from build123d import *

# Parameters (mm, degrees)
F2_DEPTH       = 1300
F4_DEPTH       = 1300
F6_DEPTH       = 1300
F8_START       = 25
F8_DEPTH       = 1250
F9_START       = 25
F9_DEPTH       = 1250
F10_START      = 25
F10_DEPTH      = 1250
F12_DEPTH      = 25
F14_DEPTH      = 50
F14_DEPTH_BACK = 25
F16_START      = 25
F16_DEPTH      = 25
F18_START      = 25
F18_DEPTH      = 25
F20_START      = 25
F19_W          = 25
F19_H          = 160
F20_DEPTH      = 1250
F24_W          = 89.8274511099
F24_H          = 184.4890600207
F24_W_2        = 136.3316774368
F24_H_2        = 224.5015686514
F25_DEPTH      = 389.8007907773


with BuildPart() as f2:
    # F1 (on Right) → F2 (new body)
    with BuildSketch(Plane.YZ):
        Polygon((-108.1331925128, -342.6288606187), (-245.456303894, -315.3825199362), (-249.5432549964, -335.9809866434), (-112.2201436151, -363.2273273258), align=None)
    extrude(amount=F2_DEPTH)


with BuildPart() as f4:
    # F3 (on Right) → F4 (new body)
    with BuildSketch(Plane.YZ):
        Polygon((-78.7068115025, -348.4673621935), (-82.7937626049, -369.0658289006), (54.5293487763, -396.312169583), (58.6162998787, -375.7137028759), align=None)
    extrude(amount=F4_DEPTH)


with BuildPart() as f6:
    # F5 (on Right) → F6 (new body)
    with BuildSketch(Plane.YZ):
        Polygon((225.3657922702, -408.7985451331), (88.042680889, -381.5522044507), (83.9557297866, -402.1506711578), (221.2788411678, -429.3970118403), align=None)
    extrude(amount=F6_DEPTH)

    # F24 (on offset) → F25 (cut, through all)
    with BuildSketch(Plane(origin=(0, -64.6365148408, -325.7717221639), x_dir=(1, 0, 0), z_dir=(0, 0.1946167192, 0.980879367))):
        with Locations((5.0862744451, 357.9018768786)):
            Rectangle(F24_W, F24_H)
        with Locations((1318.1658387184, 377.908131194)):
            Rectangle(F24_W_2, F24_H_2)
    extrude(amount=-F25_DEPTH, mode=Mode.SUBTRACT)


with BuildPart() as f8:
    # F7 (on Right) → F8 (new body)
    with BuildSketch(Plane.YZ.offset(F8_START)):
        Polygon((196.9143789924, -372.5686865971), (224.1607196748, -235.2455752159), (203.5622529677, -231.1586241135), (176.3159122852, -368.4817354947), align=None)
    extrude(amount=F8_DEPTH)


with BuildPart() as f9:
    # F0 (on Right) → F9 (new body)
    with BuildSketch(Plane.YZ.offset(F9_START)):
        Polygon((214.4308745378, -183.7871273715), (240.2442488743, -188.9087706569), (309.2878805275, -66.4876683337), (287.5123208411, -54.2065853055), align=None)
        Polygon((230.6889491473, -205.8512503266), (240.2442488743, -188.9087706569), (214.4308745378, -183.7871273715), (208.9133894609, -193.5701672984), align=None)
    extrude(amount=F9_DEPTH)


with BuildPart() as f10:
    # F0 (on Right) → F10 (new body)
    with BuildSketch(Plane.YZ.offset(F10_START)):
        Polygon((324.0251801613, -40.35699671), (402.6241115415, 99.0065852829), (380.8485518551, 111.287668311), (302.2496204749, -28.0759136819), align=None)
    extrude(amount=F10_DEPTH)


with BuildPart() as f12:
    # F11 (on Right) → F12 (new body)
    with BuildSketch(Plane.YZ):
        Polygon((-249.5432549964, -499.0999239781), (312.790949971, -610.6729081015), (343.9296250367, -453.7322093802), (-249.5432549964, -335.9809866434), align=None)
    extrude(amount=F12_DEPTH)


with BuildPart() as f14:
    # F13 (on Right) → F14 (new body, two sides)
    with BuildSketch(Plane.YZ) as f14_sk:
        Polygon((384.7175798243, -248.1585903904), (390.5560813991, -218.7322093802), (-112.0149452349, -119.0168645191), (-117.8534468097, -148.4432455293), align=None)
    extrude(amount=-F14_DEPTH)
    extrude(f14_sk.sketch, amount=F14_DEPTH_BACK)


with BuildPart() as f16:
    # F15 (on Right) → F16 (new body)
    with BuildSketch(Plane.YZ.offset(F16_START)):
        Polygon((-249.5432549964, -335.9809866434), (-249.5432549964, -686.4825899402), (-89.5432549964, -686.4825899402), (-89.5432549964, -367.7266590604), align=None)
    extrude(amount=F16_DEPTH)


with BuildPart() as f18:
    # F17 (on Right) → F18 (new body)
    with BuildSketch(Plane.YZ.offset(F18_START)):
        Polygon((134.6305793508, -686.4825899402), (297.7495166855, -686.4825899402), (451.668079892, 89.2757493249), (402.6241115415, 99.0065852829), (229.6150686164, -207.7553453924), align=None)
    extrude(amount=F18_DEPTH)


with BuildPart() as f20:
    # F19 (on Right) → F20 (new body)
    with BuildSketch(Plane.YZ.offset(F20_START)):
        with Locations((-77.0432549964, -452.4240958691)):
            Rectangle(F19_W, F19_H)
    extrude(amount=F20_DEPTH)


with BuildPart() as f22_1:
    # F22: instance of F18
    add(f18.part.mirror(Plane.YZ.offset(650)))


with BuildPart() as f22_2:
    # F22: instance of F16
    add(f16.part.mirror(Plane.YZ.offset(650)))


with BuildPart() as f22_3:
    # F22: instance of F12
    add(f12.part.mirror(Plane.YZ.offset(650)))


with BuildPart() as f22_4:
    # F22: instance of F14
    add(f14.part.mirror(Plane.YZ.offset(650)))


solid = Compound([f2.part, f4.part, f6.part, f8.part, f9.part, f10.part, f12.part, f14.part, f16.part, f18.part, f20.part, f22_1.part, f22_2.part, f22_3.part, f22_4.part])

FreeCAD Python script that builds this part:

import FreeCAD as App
import Part
import Sketcher

V = App.Vector


def add_polygon(sketch, points):
    """Adds a closed chain of lines whose ends are joined by coincident constraints."""
    first, n = sketch.GeometryCount, len(points)
    for a, b in zip(points, points[1:] + points[:1]):
        sketch.addGeometry(Part.LineSegment(App.Vector(*a, 0), App.Vector(*b, 0)), False)
    for i in range(n):
        sketch.addConstraint(Sketcher.Constraint("Coincident", first + i, 2, first + (i + 1) % n, 1))

doc = App.newDocument("Part")
body = doc.addObject("PartDesign::Body", "Body")

sketch1 = body.newObject("Sketcher::SketchObject", "Sketch")
sketch1.AttachmentSupport = (doc.getObject("YZ_Plane"), [""])
sketch1.MapMode = "FlatFace"
add_polygon(sketch1, [(-108, -343), (-245, -315), (-250, -336), (-112, -363)])
sketch1.addConstraint([
    Sketcher.Constraint("Perpendicular", 0, 1),
    Sketcher.Constraint("Perpendicular", 1, 2),
    Sketcher.Constraint("Perpendicular", 2, 3),
    Sketcher.Constraint("Distance", 0, 140.0),
    Sketcher.Constraint("Distance", 1, 21.0),
    Sketcher.Constraint("DistanceY", 0, 2, -1, 1, 315.38252),
    Sketcher.Constraint("DistanceY", 3, 2, -1, 1, 342.628861),
    Sketcher.Constraint("DistanceX", 0, 2, -1, 1, 245.456304),
])
pad1 = body.newObject("PartDesign::Pad", "Pad")
pad1.Profile = sketch1
pad1.Length = 1300
body2 = doc.addObject("PartDesign::Body", "Body001")

sketch2 = body2.newObject("Sketcher::SketchObject", "Sketch001")
sketch2.AttachmentSupport = (doc.getObject("YZ_Plane001"), [""])
sketch2.MapMode = "FlatFace"
add_polygon(sketch2, [(-79, -348), (-83, -369), (55, -396), (59, -376)])
sketch2.addConstraint([
    Sketcher.Constraint("Perpendicular", 0, 1),
    Sketcher.Constraint("Perpendicular", 1, 2),
    Sketcher.Constraint("Perpendicular", 2, 3),
    Sketcher.Constraint("Distance", 0, 21.0),
    Sketcher.Constraint("Distance", 1, 140.0),
    Sketcher.Constraint("DistanceX", -1, 1, 2, 2, 58.6163),
    Sketcher.Constraint("DistanceY", 0, 2, -1, 1, 369.065829),
    Sketcher.Constraint("DistanceX", -1, 1, 1, 2, 54.529349),
])
pad2 = body2.newObject("PartDesign::Pad", "Pad001")
pad2.Profile = sketch2
pad2.Length = 1300
body3 = doc.addObject("PartDesign::Body", "Body002")

sketch3 = body3.newObject("Sketcher::SketchObject", "Sketch002")
sketch3.AttachmentSupport = (doc.getObject("YZ_Plane002"), [""])
sketch3.MapMode = "FlatFace"
add_polygon(sketch3, [(225, -409), (88, -382), (84, -402), (221, -429)])
sketch3.addConstraint([
    Sketcher.Constraint("Perpendicular", 0, 1),
    Sketcher.Constraint("Perpendicular", 1, 2),
    Sketcher.Constraint("Perpendicular", 2, 3),
    Sketcher.Constraint("Distance", 0, 140.0),
    Sketcher.Constraint("Distance", 1, 21.0),
    Sketcher.Constraint("DistanceX", -1, 1, 0, 2, 88.042681),
    Sketcher.Constraint("DistanceX", -1, 1, 1, 2, 83.95573),
    Sketcher.Constraint("DistanceY", 1, 2, -1, 1, 402.150671),
])
pad3 = body3.newObject("PartDesign::Pad", "Pad002")
pad3.Profile = sketch3
pad3.Length = 1300

sketch4 = body3.newObject("Sketcher::SketchObject", "Sketch003")
sketch4.Placement = App.Placement(V(0, -64.636515, -325.771722), App.Rotation(V(1, 0, 0), V(0, 0.980879367, -0.194616719), V(0, 0.194616719, 0.980879367), "ZXY"))
add_polygon(sketch4, [(-40, 450), (-40, 266), (50, 266), (50, 450)])
add_polygon(sketch4, [(1250, 490), (1250, 266), (1386, 266), (1386, 490)])
sketch4.addConstraint([
    Sketcher.Constraint("Vertical", 0),
    Sketcher.Constraint("Horizontal", 1),
    Sketcher.Constraint("Vertical", 2),
    Sketcher.Constraint("Horizontal", 3),
    Sketcher.Constraint("Vertical", 4),
    Sketcher.Constraint("Horizontal", 5),
    Sketcher.Constraint("Vertical", 6),
    Sketcher.Constraint("Horizontal", 7),
    Sketcher.Constraint("Horizontal", 1, 2, 4, 2),
    Sketcher.Constraint("DistanceX", -1, 1, 1, 2, 50.0),
    Sketcher.Constraint("DistanceX", -1, 1, 4, 2, 1250.0),
    Sketcher.Constraint("DistanceX", 1, 1, 1, 2, 89.827451),
    Sketcher.Constraint("DistanceY", 0, 2, 0, 1, 184.48906),
    Sketcher.Constraint("DistanceY", 4, 2, 4, 1, 224.501569),
    Sketcher.Constraint("DistanceX", 5, 1, 5, 2, 136.331677),
    Sketcher.Constraint("DistanceY", -1, 1, 0, 2, 265.657347),
])
pocket1 = body3.newObject("PartDesign::Pocket", "Pocket")
pocket1.Profile = sketch4
pocket1.Type = "ThroughAll"
body4 = doc.addObject("PartDesign::Body", "Body003")

sketch5 = body4.newObject("Sketcher::SketchObject", "Sketch004")
sketch5.AttachmentSupport = (doc.getObject("YZ_Plane003"), [""])
sketch5.MapMode = "FlatFace"
sketch5.AttachmentOffset = App.Placement(V(0, 0, 25), App.Rotation())
add_polygon(sketch5, [(197, -373), (224, -235), (204, -231), (176, -368)])
sketch5.addConstraint([
    Sketcher.Constraint("Perpendicular", 0, 1),
    Sketcher.Constraint("Perpendicular", 1, 2),
    Sketcher.Constraint("Perpendicular", 2, 3),
    Sketcher.Constraint("Distance", 0, 140.0),
    Sketcher.Constraint("Distance", 1, 21.0),
    Sketcher.Constraint("DistanceX", -1, 1, 0, 2, 224.16072),
    Sketcher.Constraint("DistanceX", -1, 1, 3, 2, 196.914379),
    Sketcher.Constraint("DistanceY", 0, 2, -1, 1, 235.245575),
])
pad4 = body4.newObject("PartDesign::Pad", "Pad003")
pad4.Profile = sketch5
pad4.Length = 1250
body5 = doc.addObject("PartDesign::Body", "Body004")

sketch6 = body5.newObject("Sketcher::SketchObject", "Sketch005")
sketch6.AttachmentSupport = (doc.getObject("YZ_Plane004"), [""])
sketch6.MapMode = "FlatFace"
sketch6.AttachmentOffset = App.Placement(V(0, 0, 25), App.Rotation())
add_polygon(sketch6, [(309, -66), (288, -54), (214, -184), (209, -194), (231, -206)])
sketch6.addConstraint([
    Sketcher.Constraint("Perpendicular", 0, 1),
    Sketcher.Constraint("Parallel", 1, 2),
    Sketcher.Constraint("Perpendicular", 2, 3),
    Sketcher.Constraint("Perpendicular", 3, 4),
    Sketcher.Constraint("Distance", 0, 25.0),
    Sketcher.Constraint("Distance", 4, 160.0),
    Sketcher.Constraint("DistanceY", 2, 2, 4, 2, 127.082499),
    Sketcher.Constraint("DistanceX", -1, 1, 0, 2, 287.512321),
    Sketcher.Constraint("DistanceY", 3, 2, -1, 1, 205.85125),
    Sketcher.Constraint("DistanceY", 2, 2, 1, 2, 9.78304),
])
pad5 = body5.newObject("PartDesign::Pad", "Pad004")
pad5.Profile = sketch6
pad5.Length = 1250
body6 = doc.addObject("PartDesign::Body", "Body005")

sketch7 = body6.newObject("Sketcher::SketchObject", "Sketch006")
sketch7.AttachmentSupport = (doc.getObject("YZ_Plane005"), [""])
sketch7.MapMode = "FlatFace"
sketch7.AttachmentOffset = App.Placement(V(0, 0, 25), App.Rotation())
add_polygon(sketch7, [(324, -40), (403, 99), (381, 111), (302, -28)])
sketch7.addConstraint([
    Sketcher.Constraint("Perpendicular", 0, 1),
    Sketcher.Constraint("Perpendicular", 1, 2),
    Sketcher.Constraint("Perpendicular", 2, 3),
    Sketcher.Constraint("Distance", 0, 160.0),
    Sketcher.Constraint("Distance", 1, 25.0),
    Sketcher.Constraint("DistanceY", 2, 2, 0, 2, 127.082499),
    Sketcher.Constraint("DistanceX", -1, 1, 0, 2, 402.624112),
    Sketcher.Constraint("DistanceY", -1, 1, 1, 2, 111.287668),
])
pad6 = body6.newObject("PartDesign::Pad", "Pad005")
pad6.Profile = sketch7
pad6.Length = 1250
body7 = doc.addObject("PartDesign::Body", "Body006")

sketch8 = body7.newObject("Sketcher::SketchObject", "Sketch007")
sketch8.AttachmentSupport = (doc.getObject("YZ_Plane006"), [""])
sketch8.MapMode = "FlatFace"
add_polygon(sketch8, [(-250, -499), (313, -611), (344, -454), (-250, -336)])
sketch8.addConstraint([
    Sketcher.Constraint("Vertical", 3),
    Sketcher.Constraint("Perpendicular", 0, 1),
    Sketcher.Constraint("Perpendicular", 1, 2),
    Sketcher.Constraint("Distance", 1, 160.0),
    Sketcher.Constraint("DistanceY", 0, 2, 1, 2, 156.940699),
    Sketcher.Constraint("Distance", 2, 605.04166),
    Sketcher.Constraint("DistanceX", -1, 1, 0, 2, 312.79095),
    Sketcher.Constraint("DistanceY", 0, 2, -1, 1, 610.672908),
])
pad7 = body7.newObject("PartDesign::Pad", "Pad006")
pad7.Profile = sketch8
pad7.Length = 25
body8 = doc.addObject("PartDesign::Body", "Body007")

sketch9 = body8.newObject("Sketcher::SketchObject", "Sketch008")
sketch9.AttachmentSupport = (doc.getObject("YZ_Plane007"), [""])
sketch9.MapMode = "FlatFace"
add_polygon(sketch9, [(385, -248), (391, -219), (-112, -119), (-118, -148)])
sketch9.addConstraint([
    Sketcher.Constraint("Perpendicular", 0, 1),
    Sketcher.Constraint("Perpendicular", 1, 2),
    Sketcher.Constraint("Perpendicular", 2, 3),
    Sketcher.Constraint("Distance", 0, 30.0),
    Sketcher.Constraint("DistanceX", 2, 2, 1, 2, 5.838502),
    Sketcher.Constraint("DistanceX", -1, 1, 0, 2, 390.556081),
    Sketcher.Constraint("DistanceY", 0, 2, -1, 1, 218.732209),
    Sketcher.Constraint("DistanceX", 2, 2, 0, 2, 508.409528),
])
pad8 = body8.newObject("PartDesign::Pad", "Pad007")
pad8.Profile = sketch9
pad8.Type = "TwoLengths"
pad8.Length = 50
pad8.Length2 = 25
pad8.Reversed = True
body9 = doc.addObject("PartDesign::Body", "Body008")

sketch10 = body9.newObject("Sketcher::SketchObject", "Sketch009")
sketch10.AttachmentSupport = (doc.getObject("YZ_Plane008"), [""])
sketch10.MapMode = "FlatFace"
sketch10.AttachmentOffset = App.Placement(V(0, 0, 25), App.Rotation())
add_polygon(sketch10, [(-250, -336), (-250, -686), (-90, -686), (-90, -368)])
sketch10.addConstraint([
    Sketcher.Constraint("Vertical", 0),
    Sketcher.Constraint("Horizontal", 1),
    Sketcher.Constraint("Vertical", 2),
    Sketcher.Constraint("DistanceX", 1, 1, 1, 2, 160.0),
    Sketcher.Constraint("DistanceY", 2, 1, 2, 2, 318.755931),
    Sketcher.Constraint("DistanceY", 0, 2, 0, 1, 350.501603),
    Sketcher.Constraint("DistanceY", 0, 2, -1, 1, 686.48259),
    Sketcher.Constraint("DistanceX", 0, 2, -1, 1, 249.543255),
])
pad9 = body9.newObject("PartDesign::Pad", "Pad008")
pad9.Profile = sketch10
pad9.Length = 25
body10 = doc.addObject("PartDesign::Body", "Body009")

sketch11 = body10.newObject("Sketcher::SketchObject", "Sketch010")
sketch11.AttachmentSupport = (doc.getObject("YZ_Plane009"), [""])
sketch11.MapMode = "FlatFace"
sketch11.AttachmentOffset = App.Placement(V(0, 0, 25), App.Rotation())
add_polygon(sketch11, [(135, -686), (298, -686), (452, 89), (403, 99), (230, -208)])
sketch11.addConstraint([
    Sketcher.Constraint("Horizontal", 0),
    Sketcher.Constraint("Perpendicular", 1, 2),
    Sketcher.Constraint("Perpendicular", 2, 4),
    Sketcher.Constraint("Distance", 2, 50.0),
    Sketcher.Constraint("DistanceX", 4, 2, 1, 2, 317.037501),
    Sketcher.Constraint("DistanceX", 0, 1, 0, 2, 163.118937),
    Sketcher.Constraint("DistanceY", 0, 2, -1, 1, 686.48259),
    Sketcher.Constraint("DistanceX", -1, 1, 1, 2, 451.66808),
    Sketcher.Constraint("DistanceY", -1, 1, 1, 2, 89.275749),
    Sketcher.Constraint("DistanceX", -1, 1, 3, 2, 229.615069),
])
pad10 = body10.newObject("PartDesign::Pad", "Pad009")
pad10.Profile = sketch11
pad10.Length = 25
body11 = doc.addObject("PartDesign::Body", "Body010")

sketch12 = body11.newObject("Sketcher::SketchObject", "Sketch011")
sketch12.AttachmentSupport = (doc.getObject("YZ_Plane010"), [""])
sketch12.MapMode = "FlatFace"
sketch12.AttachmentOffset = App.Placement(V(0, 0, 25), App.Rotation())
add_polygon(sketch12, [(-90, -372), (-90, -532), (-65, -532), (-65, -372)])
sketch12.addConstraint([
    Sketcher.Constraint("Vertical", 0),
    Sketcher.Constraint("Horizontal", 1),
    Sketcher.Constraint("Vertical", 2),
    Sketcher.Constraint("Horizontal", 3),
    Sketcher.Constraint("DistanceX", 1, 1, 1, 2, 25.0),
    Sketcher.Constraint("DistanceY", 0, 2, 0, 1, 160.0),
    Sketcher.Constraint("DistanceX", 0, 2, -1, 1, 89.543255),
    Sketcher.Constraint("DistanceY", 0, 2, -1, 1, 532.424096),
])
pad11 = body11.newObject("PartDesign::Pad", "Pad010")
pad11.Profile = sketch12
pad11.Length = 1250
body12 = doc.addObject("PartDesign::Body", "Body011")
doc.recompute()

mirroring = doc.addObject("Part::Mirroring", "Mirroring")
mirroring.Source = body10
mirroring.Base = V(650, 0, 0)
mirroring.Normal = V(1, 0, 0)
body12.BaseFeature = mirroring
doc.recompute()
body13 = doc.addObject("PartDesign::Body", "Body012")
doc.recompute()

mirroring2 = doc.addObject("Part::Mirroring", "Mirroring001")
mirroring2.Source = body9
mirroring2.Base = V(650, 0, 0)
mirroring2.Normal = V(1, 0, 0)
body13.BaseFeature = mirroring2
doc.recompute()
body14 = doc.addObject("PartDesign::Body", "Body013")
doc.recompute()

mirroring3 = doc.addObject("Part::Mirroring", "Mirroring002")
mirroring3.Source = body7
mirroring3.Base = V(650, 0, 0)
mirroring3.Normal = V(1, 0, 0)
body14.BaseFeature = mirroring3
doc.recompute()
body15 = doc.addObject("PartDesign::Body", "Body014")
doc.recompute()

mirroring4 = doc.addObject("Part::Mirroring", "Mirroring003")
mirroring4.Source = body8
mirroring4.Base = V(650, 0, 0)
mirroring4.Normal = V(1, 0, 0)
body15.BaseFeature = mirroring4
doc.recompute()
mirroring.Visibility = False
mirroring2.Visibility = False
mirroring3.Visibility = False
mirroring4.Visibility = False

doc.recompute()
